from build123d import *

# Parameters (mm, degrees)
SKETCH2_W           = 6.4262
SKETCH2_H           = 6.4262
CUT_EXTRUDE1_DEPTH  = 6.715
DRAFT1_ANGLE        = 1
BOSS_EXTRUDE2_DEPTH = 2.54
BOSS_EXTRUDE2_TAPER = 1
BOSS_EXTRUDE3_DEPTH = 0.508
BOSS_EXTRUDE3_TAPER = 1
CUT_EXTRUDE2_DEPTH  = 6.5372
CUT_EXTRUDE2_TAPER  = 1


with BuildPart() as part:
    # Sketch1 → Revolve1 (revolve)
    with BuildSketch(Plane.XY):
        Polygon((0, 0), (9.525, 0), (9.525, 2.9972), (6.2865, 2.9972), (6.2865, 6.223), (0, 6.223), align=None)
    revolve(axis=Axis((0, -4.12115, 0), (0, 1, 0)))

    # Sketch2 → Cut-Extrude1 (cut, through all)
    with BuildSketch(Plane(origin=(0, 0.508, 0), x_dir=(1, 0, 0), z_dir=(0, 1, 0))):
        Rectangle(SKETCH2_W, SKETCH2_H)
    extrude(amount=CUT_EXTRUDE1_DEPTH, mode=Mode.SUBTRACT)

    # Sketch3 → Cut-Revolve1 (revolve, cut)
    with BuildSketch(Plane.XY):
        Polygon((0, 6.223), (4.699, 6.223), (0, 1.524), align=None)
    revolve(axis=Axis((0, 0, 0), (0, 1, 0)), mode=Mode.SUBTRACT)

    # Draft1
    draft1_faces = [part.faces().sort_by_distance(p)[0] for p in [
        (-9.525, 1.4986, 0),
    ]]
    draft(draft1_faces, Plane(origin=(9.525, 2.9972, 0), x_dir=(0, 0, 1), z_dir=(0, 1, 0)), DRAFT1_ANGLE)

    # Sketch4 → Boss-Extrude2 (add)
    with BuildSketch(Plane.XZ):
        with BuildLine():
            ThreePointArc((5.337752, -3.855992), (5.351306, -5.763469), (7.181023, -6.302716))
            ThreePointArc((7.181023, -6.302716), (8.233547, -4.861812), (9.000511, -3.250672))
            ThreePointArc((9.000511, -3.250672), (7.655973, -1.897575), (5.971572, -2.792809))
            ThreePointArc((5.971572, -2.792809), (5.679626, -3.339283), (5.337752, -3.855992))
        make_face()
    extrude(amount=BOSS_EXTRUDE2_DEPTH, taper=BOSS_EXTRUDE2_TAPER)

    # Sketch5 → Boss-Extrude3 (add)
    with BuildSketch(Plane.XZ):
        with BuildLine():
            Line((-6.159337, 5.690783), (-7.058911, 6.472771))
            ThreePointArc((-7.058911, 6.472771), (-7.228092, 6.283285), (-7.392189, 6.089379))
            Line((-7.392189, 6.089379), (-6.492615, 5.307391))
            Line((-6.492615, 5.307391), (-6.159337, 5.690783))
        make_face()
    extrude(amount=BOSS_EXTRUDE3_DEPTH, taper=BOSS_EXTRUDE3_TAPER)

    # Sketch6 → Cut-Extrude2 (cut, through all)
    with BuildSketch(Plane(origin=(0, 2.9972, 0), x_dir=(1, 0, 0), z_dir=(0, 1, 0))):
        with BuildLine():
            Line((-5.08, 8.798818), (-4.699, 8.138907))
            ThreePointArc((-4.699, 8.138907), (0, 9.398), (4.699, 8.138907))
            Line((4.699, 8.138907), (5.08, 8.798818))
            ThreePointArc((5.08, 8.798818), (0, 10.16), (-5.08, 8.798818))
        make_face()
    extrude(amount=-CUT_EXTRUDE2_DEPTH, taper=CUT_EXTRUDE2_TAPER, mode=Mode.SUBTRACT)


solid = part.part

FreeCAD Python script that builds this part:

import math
import FreeCAD as App
import Part
import Sketcher
Q = App.Units.Quantity


def faces_at(feature, points):
    """Names of the faces that lie closest to the given points."""
    faces = feature.Shape.Faces
    near = lambda p: min(range(len(faces)), key=lambda i: faces[i].distToShape(Part.Vertex(*p))[0])
    return sorted({f"Face{near(p) + 1}" for p in points})


def add_polygon(sketch, points):
    """Adds a closed chain of lines whose ends are joined by coincident constraints."""
    first, n = sketch.GeometryCount, len(points)
    for a, b in zip(points, points[1:] + points[:1]):
        sketch.addGeometry(Part.LineSegment(App.Vector(*a, 0), App.Vector(*b, 0)), False)
    for i in range(n):
        sketch.addConstraint(Sketcher.Constraint("Coincident", first + i, 2, first + (i + 1) % n, 1))

doc = App.newDocument("Part")
body = doc.addObject("PartDesign::Body", "Body")

sketch1 = body.newObject("Sketcher::SketchObject", "Sketch")
sketch1.AttachmentSupport = (doc.getObject("XY_Plane"), [""])
sketch1.MapMode = "FlatFace"
add_polygon(sketch1, [(0, 0), (9.525, 0), (9.525, 2.9972), (6.2865, 2.9972), (6.2865, 6.223), (0, 6.223)])
sketch1.addConstraint([
    Sketcher.Constraint("Horizontal", 0),
    Sketcher.Constraint("Vertical", 1),
    Sketcher.Constraint("Horizontal", 2),
    Sketcher.Constraint("Vertical", 3),
    Sketcher.Constraint("Horizontal", 4),
    Sketcher.Constraint("Vertical", 5),
    Sketcher.Constraint("Coincident", 5, 2, -1, 1),
    Sketcher.Constraint("DistanceX", 0, 1, 0, 2, Q("0.375 in")),
    Sketcher.Constraint("DistanceY", 1, 1, 1, 2, Q("0.118 in")),
    Sketcher.Constraint("DistanceY", 3, 1, 3, 2, Q("0.127 in")),
    Sketcher.Constraint("DistanceX", 2, 2, 2, 1, Q("0.1275 in")),
])
revolution = body.newObject("PartDesign::Revolution", "Revolution")
revolution.Profile = sketch1
revolution.ReferenceAxis = (sketch1, ["V_Axis"])
revolution.Angle = 360

sketch2 = body.newObject("Sketcher::SketchObject", "Sketch001")
sketch2.AttachmentSupport = (doc.getObject("XZ_Plane"), [""])
sketch2.MapMode = "FlatFace"
sketch2.AttachmentOffset = App.Placement(App.Vector(0, 0, -0.02 * 25.4), App.Rotation())
add_polygon(sketch2, [(-3.2131, -3.2131), (-3.2131, 3.2131), (3.2131, 3.2131), (3.2131, -3.2131)])
sketch2.addConstraint([
    Sketcher.Constraint("Vertical", 0),
    Sketcher.Constraint("Horizontal", 1),
    Sketcher.Constraint("Vertical", 2),
    Sketcher.Constraint("Horizontal", 3),
    Sketcher.Constraint("Symmetric", 0, 2, 2, 2, -1, 1),
    Sketcher.Constraint("Equal", 3, 0),
    Sketcher.Constraint("DistanceX", 1, 1, 1, 2, Q("0.253 in")),
])
pocket1 = body.newObject("PartDesign::Pocket", "Pocket")
pocket1.Profile = sketch2
pocket1.Type = "ThroughAll"

sketch3 = body.newObject("Sketcher::SketchObject", "Sketch002")
sketch3.AttachmentSupport = (doc.getObject("XY_Plane"), [""])
sketch3.MapMode = "FlatFace"
add_polygon(sketch3, [(4.699, 6.223), (0, 6.223), (0, 1.524)])
sketch3.addConstraint([
    Sketcher.Constraint("Horizontal", 0),
    Sketcher.Constraint("Vertical", 1),
    Sketcher.Constraint("PointOnObject", 0, 2, -2),
    Sketcher.Constraint("Equal", 0, 1),
    Sketcher.Constraint("DistanceX", 0, 2, 0, 1, Q("0.185 in")),
    Sketcher.Constraint("DistanceY", -1, 1, 1, 2, Q("0.06 in")),
])
groove = body.newObject("PartDesign::Groove", "Groove")
groove.Profile = sketch3
groove.ReferenceAxis = (sketch3, ["V_Axis"])
groove.Angle = 360
doc.recompute()

datumplane = body.newObject("PartDesign::Plane", "DatumPlane")
datumplane.AttachmentSupport = (doc.getObject("XZ_Plane"), [""])
datumplane.MapMode = "FlatFace"
datumplane.AttachmentOffset = App.Placement(App.Vector(0, 0, -0.118 * 25.4), App.Rotation())
draft = body.newObject("PartDesign::Draft", "Draft")
draft.Base = (groove, faces_at(groove, [(-9.525, 1.499, 0)]))
draft.NeutralPlane = (datumplane, [""])
draft.Angle = 1
draft.Reversed = True

sketch4 = body.newObject("Sketcher::SketchObject", "Sketch003")
sketch4.AttachmentSupport = (doc.getObject("XZ_Plane"), [""])
sketch4.MapMode = "FlatFace"
sketch4.addGeometry([
    Part.ArcOfCircle(Part.Circle(App.Vector(6.6294, -4.800601, 0), App.Vector(0, 0, 1), 1.6002), math.radians(143.821226), math.radians(290.164799)),
    Part.ArcOfCircle(Part.Circle(App.Vector(0.007131, 0.042398, 0), App.Vector(0, 0, 1), 9.577327), math.radians(-41.491889), math.radians(-20.11101)),
    Part.ArcOfCircle(Part.Circle(App.Vector(7.4168, -3.4798, 0), App.Vector(0, 0, 1), 1.6002), math.radians(8.232322), math.radians(154.57585)),
    Part.ArcOfCircle(Part.Circle(App.Vector(0.007216, 0.042343, 0), App.Vector(0, 0, 1), 6.60391), math.radians(-36.178802), math.radians(-25.42404)),
], False)
sketch4.addConstraint([
    Sketcher.Constraint("Coincident", 0, 2, 1, 1),
    Sketcher.Constraint("Coincident", 1, 2, 2, 1),
    Sketcher.Constraint("Tangent", 2, 2, 3, 2),
    Sketcher.Constraint("Tangent", 3, 1, 0, 1),
    Sketcher.Constraint("Equal", 0, 2),
    Sketcher.Constraint("Radius", 0, Q("0.063 in")),
    Sketcher.Constraint("DistanceX", -1, 1, 0, 3, Q("0.261 in")),
    Sketcher.Constraint("DistanceY", 0, 3, -1, 1, Q("0.189 in")),
    Sketcher.Constraint("DistanceX", -1, 1, 2, 3, Q("0.292 in")),
    Sketcher.Constraint("DistanceY", 2, 3, -1, 1, Q("0.137 in")),
    Sketcher.Constraint("Radius", 3, 6.60391),
    Sketcher.Constraint("Radius", 1, 9.577327),
    Sketcher.Constraint("DistanceY", 0, 3, 1, 3, 4.842998),
    Sketcher.Constraint("DistanceX", -1, 1, 1, 3, 0.007131),
])
pad1 = body.newObject("PartDesign::Pad", "Pad")
pad1.Profile = sketch4
pad1.Length = Q("0.1 in")
pad1.TaperAngle = -1

sketch5 = body.newObject("Sketcher::SketchObject", "Sketch004")
sketch5.AttachmentSupport = (doc.getObject("XZ_Plane"), [""])
sketch5.MapMode = "FlatFace"
sketch5.addGeometry([
    Part.LineSegment(App.Vector(-6.159337, 5.690783, 0), App.Vector(-7.058911, 6.472771, 0)),
    Part.ArcOfCircle(Part.Circle(App.Vector(0.000839, -0.000737, 0), App.Vector(0, 0, 1), 9.578432), math.radians(137.480423), math.radians(140.519506)),
    Part.LineSegment(App.Vector(-7.392189, 6.089379, 0), App.Vector(-6.492615, 5.307391, 0)),
    Part.LineSegment(App.Vector(-6.492615, 5.307391, 0), App.Vector(-6.159337, 5.690783, 0)),
], False)
sketch5.addConstraint([
    Sketcher.Constraint("Coincident", 0, 2, 1, 1),
    Sketcher.Constraint("Coincident", 1, 2, 2, 1),
    Sketcher.Constraint("Coincident", 2, 2, 3, 1),
    Sketcher.Constraint("Coincident", 3, 2, 0, 1),
    Sketcher.Constraint("Parallel", 0, 2),
    Sketcher.Constraint("Perpendicular", 2, 3),
    Sketcher.Constraint("Equal", 0, 2),
    Sketcher.Constraint("Angle", 0, Q("138.999991 deg")),
    Sketcher.Constraint("Distance", 3, Q("0.02 in")),
    Sketcher.Constraint("Radius", 1, 9.578432),
    Sketcher.Constraint("DistanceX", -1, 1, 1, 3, 0.000839),
    Sketcher.Constraint("DistanceY", -1, 1, 0, 2, 6.472771),
    Sketcher.Constraint("DistanceY", -1, 1, 2, 2, 5.307391),
])
pad2 = body.newObject("PartDesign::Pad", "Pad001")
pad2.Profile = sketch5
pad2.Length = Q("0.02 in")
pad2.TaperAngle = -1

sketch6 = body.newObject("Sketcher::SketchObject", "Sketch005")
sketch6.AttachmentSupport = (doc.getObject("XZ_Plane"), [""])
sketch6.MapMode = "FlatFace"
sketch6.AttachmentOffset = App.Placement(App.Vector(0, 0, -0.118 * 25.4), App.Rotation())
sketch6.addGeometry([
    Part.LineSegment(App.Vector(-5.08, -8.798818, 0), App.Vector(-4.699, -8.138907, 0)),
    Part.ArcOfCircle(Part.Circle(App.Vector(0, 0.000002, 0), App.Vector(0, 0, 1), 9.398002), math.radians(-119.999994), math.radians(-60.000006)),
    Part.LineSegment(App.Vector(4.699, -8.138907, 0), App.Vector(5.08, -8.798818, 0)),
    Part.ArcOfCircle(Part.Circle(App.Vector(0, -0.000001, 0), App.Vector(0, 0, 1), 10.159999), math.radians(-120.000002), math.radians(-59.999998)),
], False)
sketch6.addConstraint([
    Sketcher.Constraint("Coincident", 0, 2, 1, 1),
    Sketcher.Constraint("Coincident", 1, 2, 2, 1),
    Sketcher.Constraint("Coincident", 2, 2, 3, 2),
    Sketcher.Constraint("Coincident", 3, 1, 0, 1),
    Sketcher.Constraint("Coincident", 1, 3, -1, 1),
    Sketcher.Constraint("Coincident", 3, 3, -1, 1),
    Sketcher.Constraint("Horizontal", 0, 2, 1, 2),
    Sketcher.Constraint("Horizontal", 2, 2, 3, 1),
    Sketcher.Constraint("Radius", 3, Q("0.4 in")),
    Sketcher.Constraint("Radius", 1, Q("0.3700001 in")),
    Sketcher.Constraint("Angle", 0, Q("59.999987 deg")),
    Sketcher.Constraint("DistanceX", -1, 1, 2, 2, Q("0.2 in")),
])
pocket2 = body.newObject("PartDesign::Pocket", "Pocket001")
pocket2.Profile = sketch6
pocket2.Type = "ThroughAll"
pocket2.Reversed = True
pocket2.TaperAngle = -1

doc.recompute()
